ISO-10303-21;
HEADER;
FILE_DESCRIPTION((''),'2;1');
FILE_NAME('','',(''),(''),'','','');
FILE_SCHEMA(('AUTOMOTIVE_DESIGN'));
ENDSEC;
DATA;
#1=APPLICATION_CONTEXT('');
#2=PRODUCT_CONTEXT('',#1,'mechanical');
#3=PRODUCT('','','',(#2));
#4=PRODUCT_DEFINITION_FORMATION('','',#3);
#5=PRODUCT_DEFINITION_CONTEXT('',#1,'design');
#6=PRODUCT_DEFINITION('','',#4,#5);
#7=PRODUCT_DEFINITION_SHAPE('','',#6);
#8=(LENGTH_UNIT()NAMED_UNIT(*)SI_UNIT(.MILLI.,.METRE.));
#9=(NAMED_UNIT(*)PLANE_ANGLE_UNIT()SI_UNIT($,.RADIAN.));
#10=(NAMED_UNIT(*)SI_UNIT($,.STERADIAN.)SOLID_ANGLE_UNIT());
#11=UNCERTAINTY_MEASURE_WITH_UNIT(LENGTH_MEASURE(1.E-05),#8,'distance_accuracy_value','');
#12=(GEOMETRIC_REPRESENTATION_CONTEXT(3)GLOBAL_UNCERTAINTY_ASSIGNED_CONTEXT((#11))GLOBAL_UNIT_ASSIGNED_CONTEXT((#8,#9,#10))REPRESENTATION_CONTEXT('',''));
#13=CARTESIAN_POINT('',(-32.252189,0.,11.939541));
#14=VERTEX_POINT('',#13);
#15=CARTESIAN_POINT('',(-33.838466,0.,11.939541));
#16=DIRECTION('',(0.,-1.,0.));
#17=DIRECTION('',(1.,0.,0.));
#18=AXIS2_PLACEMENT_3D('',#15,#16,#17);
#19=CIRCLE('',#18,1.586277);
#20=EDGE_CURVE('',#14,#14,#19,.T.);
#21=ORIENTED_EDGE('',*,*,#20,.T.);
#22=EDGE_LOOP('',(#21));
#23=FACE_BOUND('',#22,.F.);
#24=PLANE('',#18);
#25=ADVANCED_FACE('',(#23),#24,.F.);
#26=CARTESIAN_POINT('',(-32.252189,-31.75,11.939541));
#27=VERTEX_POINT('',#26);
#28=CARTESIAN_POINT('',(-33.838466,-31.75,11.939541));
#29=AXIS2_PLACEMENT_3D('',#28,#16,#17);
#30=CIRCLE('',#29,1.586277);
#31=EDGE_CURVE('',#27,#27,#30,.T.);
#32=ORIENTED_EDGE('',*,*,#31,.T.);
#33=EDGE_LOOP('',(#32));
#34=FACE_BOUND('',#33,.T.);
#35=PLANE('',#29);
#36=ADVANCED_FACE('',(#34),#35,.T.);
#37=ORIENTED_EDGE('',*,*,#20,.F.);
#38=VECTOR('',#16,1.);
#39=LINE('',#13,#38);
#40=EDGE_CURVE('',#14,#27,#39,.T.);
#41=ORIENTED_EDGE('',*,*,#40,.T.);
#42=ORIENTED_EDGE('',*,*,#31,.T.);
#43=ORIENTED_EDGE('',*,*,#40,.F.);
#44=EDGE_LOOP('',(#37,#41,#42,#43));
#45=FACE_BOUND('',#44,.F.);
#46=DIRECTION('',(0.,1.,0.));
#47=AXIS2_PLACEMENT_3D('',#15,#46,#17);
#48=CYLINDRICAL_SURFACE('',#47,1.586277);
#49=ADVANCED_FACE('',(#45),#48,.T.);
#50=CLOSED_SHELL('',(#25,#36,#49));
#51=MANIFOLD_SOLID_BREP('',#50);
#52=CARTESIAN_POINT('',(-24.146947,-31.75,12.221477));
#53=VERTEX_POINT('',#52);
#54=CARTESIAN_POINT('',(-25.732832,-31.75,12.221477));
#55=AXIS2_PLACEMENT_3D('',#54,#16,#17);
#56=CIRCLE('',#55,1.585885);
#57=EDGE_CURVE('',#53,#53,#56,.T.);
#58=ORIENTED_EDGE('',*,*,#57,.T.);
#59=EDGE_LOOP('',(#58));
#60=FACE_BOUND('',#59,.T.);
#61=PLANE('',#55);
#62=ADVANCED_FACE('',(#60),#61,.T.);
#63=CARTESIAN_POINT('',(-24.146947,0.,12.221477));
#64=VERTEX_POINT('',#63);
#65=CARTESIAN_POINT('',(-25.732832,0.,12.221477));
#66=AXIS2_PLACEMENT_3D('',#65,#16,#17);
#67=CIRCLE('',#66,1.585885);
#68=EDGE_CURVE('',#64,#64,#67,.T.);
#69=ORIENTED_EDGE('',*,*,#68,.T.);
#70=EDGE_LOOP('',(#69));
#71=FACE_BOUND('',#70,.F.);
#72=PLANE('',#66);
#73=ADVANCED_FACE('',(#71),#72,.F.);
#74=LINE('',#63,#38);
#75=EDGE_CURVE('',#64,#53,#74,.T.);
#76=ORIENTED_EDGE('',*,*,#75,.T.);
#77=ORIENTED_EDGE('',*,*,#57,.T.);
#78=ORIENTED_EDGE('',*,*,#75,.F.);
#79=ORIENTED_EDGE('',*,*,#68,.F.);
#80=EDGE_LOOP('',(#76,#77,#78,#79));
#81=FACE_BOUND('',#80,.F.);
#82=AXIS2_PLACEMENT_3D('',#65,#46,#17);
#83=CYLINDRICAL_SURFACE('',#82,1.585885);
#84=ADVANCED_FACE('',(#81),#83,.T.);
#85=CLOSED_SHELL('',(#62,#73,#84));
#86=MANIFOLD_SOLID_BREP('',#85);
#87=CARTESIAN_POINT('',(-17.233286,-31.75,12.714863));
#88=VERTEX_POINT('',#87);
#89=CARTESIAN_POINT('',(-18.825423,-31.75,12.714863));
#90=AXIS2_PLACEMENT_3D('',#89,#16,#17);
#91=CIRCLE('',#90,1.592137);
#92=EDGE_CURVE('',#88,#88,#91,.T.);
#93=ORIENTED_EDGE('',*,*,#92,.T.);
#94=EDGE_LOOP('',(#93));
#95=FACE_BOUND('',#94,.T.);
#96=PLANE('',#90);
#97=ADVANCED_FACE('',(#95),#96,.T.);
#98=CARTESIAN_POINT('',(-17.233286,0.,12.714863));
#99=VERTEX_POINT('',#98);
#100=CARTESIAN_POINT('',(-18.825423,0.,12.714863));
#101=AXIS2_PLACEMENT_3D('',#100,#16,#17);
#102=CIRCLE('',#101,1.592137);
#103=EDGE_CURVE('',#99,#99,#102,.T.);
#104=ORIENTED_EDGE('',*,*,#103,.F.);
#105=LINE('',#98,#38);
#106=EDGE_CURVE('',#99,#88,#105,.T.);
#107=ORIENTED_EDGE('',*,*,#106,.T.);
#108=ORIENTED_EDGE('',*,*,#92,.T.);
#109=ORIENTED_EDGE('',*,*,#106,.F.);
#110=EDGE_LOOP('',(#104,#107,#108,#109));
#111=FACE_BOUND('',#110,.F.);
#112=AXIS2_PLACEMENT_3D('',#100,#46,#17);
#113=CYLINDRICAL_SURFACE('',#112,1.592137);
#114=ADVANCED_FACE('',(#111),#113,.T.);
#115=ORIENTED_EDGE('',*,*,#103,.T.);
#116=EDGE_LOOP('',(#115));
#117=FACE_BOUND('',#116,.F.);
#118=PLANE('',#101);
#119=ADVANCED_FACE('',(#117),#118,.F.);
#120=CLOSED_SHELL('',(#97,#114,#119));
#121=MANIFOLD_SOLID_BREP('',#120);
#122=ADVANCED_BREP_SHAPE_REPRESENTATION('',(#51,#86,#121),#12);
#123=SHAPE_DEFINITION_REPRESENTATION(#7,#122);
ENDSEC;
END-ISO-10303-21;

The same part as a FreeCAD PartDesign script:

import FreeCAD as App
import Part
import Sketcher
from FreeCAD import Vector
Q = App.Units.Quantity

doc = App.newDocument("Part")
body = doc.addObject("PartDesign::Body", "Body")
body.AllowCompound = True

# Sketch on XZ plane
sketch1 = body.newObject("Sketcher::SketchObject", "Sketch")
sketch1.AttachmentSupport = (doc.getObject("XZ_Plane"), [""])
sketch1.MapMode = "FlatFace"
sketch1.addGeometry([
    Part.Circle(Vector(-33.8, 11.9, 0), Vector(0, 0, 1), 1.6),
    Part.Circle(Vector(-25.7, 12.2, 0), Vector(0, 0, 1), 1.6),
    Part.Circle(Vector(-18.8, 12.7, 0), Vector(0, 0, 1), 1.6),
], False)
sketch1.addConstraint([
    Sketcher.Constraint("Diameter", 1, 3.17177),
    Sketcher.Constraint("Diameter", 0, 3.172554),
    Sketcher.Constraint("Diameter", 2, 3.184274),
    Sketcher.Constraint("DistanceY", 0, 3, 1, 3, Q("0.0110998 in")),
    Sketcher.Constraint("DistanceY", -1, 1, 0, 3, 11.939541),
    Sketcher.Constraint("DistanceX", 1, 3, -1, 1, 25.732832),
    Sketcher.Constraint("DistanceX", 1, 3, 2, 3, 6.907409),
    Sketcher.Constraint("DistanceY", 0, 3, 2, 3, 0.775322),
    Sketcher.Constraint("DistanceX", 0, 3, -1, 1, 33.838466),
])
pad1 = body.newObject("PartDesign::Pad", "Pad")
pad1.Profile = sketch1
pad1.Length = Q("1.25 in")

doc.recompute()
